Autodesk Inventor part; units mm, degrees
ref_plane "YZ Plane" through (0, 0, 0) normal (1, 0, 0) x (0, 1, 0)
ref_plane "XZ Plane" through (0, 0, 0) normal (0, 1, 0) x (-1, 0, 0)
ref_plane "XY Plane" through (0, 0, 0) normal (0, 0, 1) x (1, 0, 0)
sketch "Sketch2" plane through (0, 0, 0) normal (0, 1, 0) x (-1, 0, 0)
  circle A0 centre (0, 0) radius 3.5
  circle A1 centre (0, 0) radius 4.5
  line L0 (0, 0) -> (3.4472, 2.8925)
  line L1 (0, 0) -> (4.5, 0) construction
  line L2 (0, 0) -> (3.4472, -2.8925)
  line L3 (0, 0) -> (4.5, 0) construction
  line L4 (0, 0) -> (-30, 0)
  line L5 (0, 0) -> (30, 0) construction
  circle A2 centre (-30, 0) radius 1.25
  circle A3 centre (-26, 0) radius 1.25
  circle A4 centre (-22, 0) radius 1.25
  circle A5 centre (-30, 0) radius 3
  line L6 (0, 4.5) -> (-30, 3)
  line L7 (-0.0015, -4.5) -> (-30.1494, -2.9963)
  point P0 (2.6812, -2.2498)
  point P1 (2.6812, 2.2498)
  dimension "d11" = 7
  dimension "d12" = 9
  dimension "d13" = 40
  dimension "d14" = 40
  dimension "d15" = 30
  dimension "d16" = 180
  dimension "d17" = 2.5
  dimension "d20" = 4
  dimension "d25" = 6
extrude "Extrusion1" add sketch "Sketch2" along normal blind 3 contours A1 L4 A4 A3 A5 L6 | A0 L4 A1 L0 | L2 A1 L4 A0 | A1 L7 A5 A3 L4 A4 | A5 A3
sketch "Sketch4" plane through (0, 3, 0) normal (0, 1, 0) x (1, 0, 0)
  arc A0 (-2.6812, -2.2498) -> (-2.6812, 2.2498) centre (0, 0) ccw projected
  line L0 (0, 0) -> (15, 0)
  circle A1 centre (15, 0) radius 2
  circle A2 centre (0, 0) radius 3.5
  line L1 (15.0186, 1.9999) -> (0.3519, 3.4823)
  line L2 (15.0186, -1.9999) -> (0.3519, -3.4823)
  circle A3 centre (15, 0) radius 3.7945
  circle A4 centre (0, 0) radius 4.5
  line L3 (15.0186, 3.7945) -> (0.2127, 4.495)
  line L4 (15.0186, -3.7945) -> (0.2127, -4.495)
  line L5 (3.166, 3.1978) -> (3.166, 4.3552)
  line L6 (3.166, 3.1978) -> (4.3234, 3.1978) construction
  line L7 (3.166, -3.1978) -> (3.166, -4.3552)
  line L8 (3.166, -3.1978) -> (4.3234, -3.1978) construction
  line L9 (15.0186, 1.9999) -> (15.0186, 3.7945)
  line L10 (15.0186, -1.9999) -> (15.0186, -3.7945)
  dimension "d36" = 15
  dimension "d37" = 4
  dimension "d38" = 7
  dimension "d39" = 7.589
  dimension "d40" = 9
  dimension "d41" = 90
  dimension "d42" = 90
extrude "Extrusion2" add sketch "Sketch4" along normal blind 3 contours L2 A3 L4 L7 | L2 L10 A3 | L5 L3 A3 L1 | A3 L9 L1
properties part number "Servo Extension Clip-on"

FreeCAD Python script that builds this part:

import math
import FreeCAD as App
import Part
import Sketcher
Q = App.Units.Quantity

doc = App.newDocument("Part")
body = doc.addObject("PartDesign::Body", "Body")

sketch1 = doc.addObject("Sketcher::SketchObject", "Sketch")
body.addObject(sketch1)
sketch1.AttachmentSupport = (doc.XZ_Plane, [""])
sketch1.MapMode = "FlatFace"
sketch1.addGeometry([
    Part.LineSegment(App.Vector(0, 4.5, 0), App.Vector(30, 3, 0)),
    Part.ArcOfCircle(Part.Circle(App.Vector(30, 0, 0), App.Vector(0, 0, 1), 3), math.radians(-87), math.radians(90)),
    Part.LineSegment(App.Vector(30.1, -3, 0), App.Vector(0, -4.5, 0)),
    Part.ArcOfCircle(Part.Circle(App.Vector(0, 0, 0), App.Vector(0, 0, 1), 4.5), math.radians(-140), math.radians(-90)),
    Part.LineSegment(App.Vector(-3.4, -2.9, 0), App.Vector(-2.7, -2.2, 0)),
    Part.ArcOfCircle(Part.Circle(App.Vector(0, 0, 0), App.Vector(0, 0, 1), 3.5), math.radians(-140), math.radians(140)),
    Part.LineSegment(App.Vector(-2.7, 2.2, 0), App.Vector(-3.4, 2.9, 0)),
    Part.ArcOfCircle(Part.Circle(App.Vector(0, 0, 0), App.Vector(0, 0, 1), 4.5), math.radians(90), math.radians(140)),
    Part.Circle(App.Vector(22, 0, 0), App.Vector(0, 0, 1), 1.2),
    Part.Circle(App.Vector(26, 0, 0), App.Vector(0, 0, 1), 1.2),
    Part.Circle(App.Vector(30, 0, 0), App.Vector(0, 0, 1), 1.2),
], False)
sketch1.addConstraint([
    Sketcher.Constraint("Coincident", 0, 2, 1, 2),
    Sketcher.Constraint("Tangent", 1, 1, 2, 1),
    Sketcher.Constraint("Coincident", 2, 2, 3, 2),
    Sketcher.Constraint("Coincident", 3, 1, 4, 1),
    Sketcher.Constraint("Coincident", 4, 2, 5, 1),
    Sketcher.Constraint("Coincident", 5, 2, 6, 1),
    Sketcher.Constraint("Coincident", 6, 2, 7, 2),
    Sketcher.Constraint("Coincident", 7, 1, 0, 1),
    Sketcher.Constraint("Coincident", 3, 3, -1, 1),
    Sketcher.Constraint("Coincident", 5, 3, -1, 1),
    Sketcher.Constraint("Coincident", 7, 3, -1, 1),
    Sketcher.Constraint("Coincident", 10, 3, 1, 3),
    Sketcher.Constraint("Equal", 3, 7),
    Sketcher.Constraint("Equal", 8, 9),
    Sketcher.Constraint("Equal", 9, 10),
    Sketcher.Constraint("PointOnObject", 1, 3, -1),
    Sketcher.Constraint("PointOnObject", 8, 3, -1),
    Sketcher.Constraint("PointOnObject", 9, 3, -1),
    Sketcher.Constraint("PointOnObject", 7, 1, -2),
    Sketcher.Constraint("Vertical", 10, 3, 0, 2),
    Sketcher.Constraint("Vertical", 4, 2, 5, 2),
    Sketcher.Constraint("Vertical", 3, 1, 6, 2),
    Sketcher.Constraint("Radius", 1, Q("3 mm")),
    Sketcher.Constraint("Diameter", 8, Q("2.5 mm")),
    Sketcher.Constraint("Radius", 3, Q("4.5 mm")),
    Sketcher.Constraint("Radius", 5, Q("3.5 mm")),
    Sketcher.Constraint("Angle", 4, Q("39.9996 deg")),
    Sketcher.Constraint("DistanceX", -1, 1, 1, 3, Q("30 mm")),
    Sketcher.Constraint("DistanceX", 9, 3, 1, 3, Q("4 mm")),
    Sketcher.Constraint("DistanceX", 8, 3, 9, 3, Q("4 mm")),
    Sketcher.Constraint("Distance", 2, Q("30.1854 mm")),
    Sketcher.Constraint("DistanceX", 3, 1, -1, 1, Q("3.4472 mm")),
])
pad1 = doc.addObject("PartDesign::Pad", "Pad")
body.addObject(pad1)
pad1.Profile = sketch1
pad1.Length = 3
pad1.Reversed = True

sketch2 = doc.addObject("Sketcher::SketchObject", "Sketch001")
body.addObject(sketch2)
sketch2.AttachmentSupport = (doc.XZ_Plane, [""])
sketch2.MapMode = "FlatFace"
sketch2.AttachmentOffset = App.Placement(App.Vector(0, 0, -3), App.Rotation())
sketch2.addGeometry([
    Part.LineSegment(App.Vector(3.2, 3.2, 0), App.Vector(3.2, 4.4, 0)),
    Part.LineSegment(App.Vector(3.2, 4.4, 0), App.Vector(15, 3.8, 0)),
    Part.LineSegment(App.Vector(15, 3.8, 0), App.Vector(15, 2, 0)),
    Part.LineSegment(App.Vector(15, 2, 0), App.Vector(3.2, 3.2, 0)),
    Part.LineSegment(App.Vector(3.2, -4.4, 0), App.Vector(3.2, -3.2, 0)),
    Part.LineSegment(App.Vector(3.2, -3.2, 0), App.Vector(15, -2, 0)),
    Part.LineSegment(App.Vector(15, -2, 0), App.Vector(15, -3.8, 0)),
    Part.LineSegment(App.Vector(15, -3.8, 0), App.Vector(3.2, -4.4, 0)),
], False)
sketch2.addConstraint([
    Sketcher.Constraint("Coincident", 0, 2, 1, 1),
    Sketcher.Constraint("Coincident", 1, 2, 2, 1),
    Sketcher.Constraint("Coincident", 2, 2, 3, 1),
    Sketcher.Constraint("Coincident", 3, 2, 0, 1),
    Sketcher.Constraint("Coincident", 4, 2, 5, 1),
    Sketcher.Constraint("Coincident", 5, 2, 6, 1),
    Sketcher.Constraint("Coincident", 6, 2, 7, 1),
    Sketcher.Constraint("Coincident", 7, 2, 4, 1),
    Sketcher.Constraint("Vertical", 0),
    Sketcher.Constraint("Vertical", 2),
    Sketcher.Constraint("Vertical", 4),
    Sketcher.Constraint("Vertical", 6),
    Sketcher.Constraint("Symmetric", 3, 2, 4, 2, -1),
    Sketcher.Constraint("Symmetric", 2, 2, 5, 2, -1),
    Sketcher.Constraint("Equal", 0, 4),
    Sketcher.Constraint("Equal", 2, 6),
    Sketcher.Constraint("DistanceY", -1, 1, 2, 2, Q("2 mm")),
    Sketcher.Constraint("DistanceY", 6, 2, 1, 2, Q("7.589 mm")),
    Sketcher.Constraint("Angle", 3, Q("174.229 deg")),
    Sketcher.Constraint("Distance", 3, Q("11.913 mm")),
    Sketcher.Constraint("DistanceY", 0, 1, 0, 2, Q("1.1574 mm")),
    Sketcher.Constraint("DistanceX", -1, 1, 0, 2, Q("3.166 mm")),
])
pad2 = doc.addObject("PartDesign::Pad", "Pad001")
body.addObject(pad2)
pad2.Profile = sketch2
pad2.Length = 3
pad2.Reversed = True

doc.recompute()
